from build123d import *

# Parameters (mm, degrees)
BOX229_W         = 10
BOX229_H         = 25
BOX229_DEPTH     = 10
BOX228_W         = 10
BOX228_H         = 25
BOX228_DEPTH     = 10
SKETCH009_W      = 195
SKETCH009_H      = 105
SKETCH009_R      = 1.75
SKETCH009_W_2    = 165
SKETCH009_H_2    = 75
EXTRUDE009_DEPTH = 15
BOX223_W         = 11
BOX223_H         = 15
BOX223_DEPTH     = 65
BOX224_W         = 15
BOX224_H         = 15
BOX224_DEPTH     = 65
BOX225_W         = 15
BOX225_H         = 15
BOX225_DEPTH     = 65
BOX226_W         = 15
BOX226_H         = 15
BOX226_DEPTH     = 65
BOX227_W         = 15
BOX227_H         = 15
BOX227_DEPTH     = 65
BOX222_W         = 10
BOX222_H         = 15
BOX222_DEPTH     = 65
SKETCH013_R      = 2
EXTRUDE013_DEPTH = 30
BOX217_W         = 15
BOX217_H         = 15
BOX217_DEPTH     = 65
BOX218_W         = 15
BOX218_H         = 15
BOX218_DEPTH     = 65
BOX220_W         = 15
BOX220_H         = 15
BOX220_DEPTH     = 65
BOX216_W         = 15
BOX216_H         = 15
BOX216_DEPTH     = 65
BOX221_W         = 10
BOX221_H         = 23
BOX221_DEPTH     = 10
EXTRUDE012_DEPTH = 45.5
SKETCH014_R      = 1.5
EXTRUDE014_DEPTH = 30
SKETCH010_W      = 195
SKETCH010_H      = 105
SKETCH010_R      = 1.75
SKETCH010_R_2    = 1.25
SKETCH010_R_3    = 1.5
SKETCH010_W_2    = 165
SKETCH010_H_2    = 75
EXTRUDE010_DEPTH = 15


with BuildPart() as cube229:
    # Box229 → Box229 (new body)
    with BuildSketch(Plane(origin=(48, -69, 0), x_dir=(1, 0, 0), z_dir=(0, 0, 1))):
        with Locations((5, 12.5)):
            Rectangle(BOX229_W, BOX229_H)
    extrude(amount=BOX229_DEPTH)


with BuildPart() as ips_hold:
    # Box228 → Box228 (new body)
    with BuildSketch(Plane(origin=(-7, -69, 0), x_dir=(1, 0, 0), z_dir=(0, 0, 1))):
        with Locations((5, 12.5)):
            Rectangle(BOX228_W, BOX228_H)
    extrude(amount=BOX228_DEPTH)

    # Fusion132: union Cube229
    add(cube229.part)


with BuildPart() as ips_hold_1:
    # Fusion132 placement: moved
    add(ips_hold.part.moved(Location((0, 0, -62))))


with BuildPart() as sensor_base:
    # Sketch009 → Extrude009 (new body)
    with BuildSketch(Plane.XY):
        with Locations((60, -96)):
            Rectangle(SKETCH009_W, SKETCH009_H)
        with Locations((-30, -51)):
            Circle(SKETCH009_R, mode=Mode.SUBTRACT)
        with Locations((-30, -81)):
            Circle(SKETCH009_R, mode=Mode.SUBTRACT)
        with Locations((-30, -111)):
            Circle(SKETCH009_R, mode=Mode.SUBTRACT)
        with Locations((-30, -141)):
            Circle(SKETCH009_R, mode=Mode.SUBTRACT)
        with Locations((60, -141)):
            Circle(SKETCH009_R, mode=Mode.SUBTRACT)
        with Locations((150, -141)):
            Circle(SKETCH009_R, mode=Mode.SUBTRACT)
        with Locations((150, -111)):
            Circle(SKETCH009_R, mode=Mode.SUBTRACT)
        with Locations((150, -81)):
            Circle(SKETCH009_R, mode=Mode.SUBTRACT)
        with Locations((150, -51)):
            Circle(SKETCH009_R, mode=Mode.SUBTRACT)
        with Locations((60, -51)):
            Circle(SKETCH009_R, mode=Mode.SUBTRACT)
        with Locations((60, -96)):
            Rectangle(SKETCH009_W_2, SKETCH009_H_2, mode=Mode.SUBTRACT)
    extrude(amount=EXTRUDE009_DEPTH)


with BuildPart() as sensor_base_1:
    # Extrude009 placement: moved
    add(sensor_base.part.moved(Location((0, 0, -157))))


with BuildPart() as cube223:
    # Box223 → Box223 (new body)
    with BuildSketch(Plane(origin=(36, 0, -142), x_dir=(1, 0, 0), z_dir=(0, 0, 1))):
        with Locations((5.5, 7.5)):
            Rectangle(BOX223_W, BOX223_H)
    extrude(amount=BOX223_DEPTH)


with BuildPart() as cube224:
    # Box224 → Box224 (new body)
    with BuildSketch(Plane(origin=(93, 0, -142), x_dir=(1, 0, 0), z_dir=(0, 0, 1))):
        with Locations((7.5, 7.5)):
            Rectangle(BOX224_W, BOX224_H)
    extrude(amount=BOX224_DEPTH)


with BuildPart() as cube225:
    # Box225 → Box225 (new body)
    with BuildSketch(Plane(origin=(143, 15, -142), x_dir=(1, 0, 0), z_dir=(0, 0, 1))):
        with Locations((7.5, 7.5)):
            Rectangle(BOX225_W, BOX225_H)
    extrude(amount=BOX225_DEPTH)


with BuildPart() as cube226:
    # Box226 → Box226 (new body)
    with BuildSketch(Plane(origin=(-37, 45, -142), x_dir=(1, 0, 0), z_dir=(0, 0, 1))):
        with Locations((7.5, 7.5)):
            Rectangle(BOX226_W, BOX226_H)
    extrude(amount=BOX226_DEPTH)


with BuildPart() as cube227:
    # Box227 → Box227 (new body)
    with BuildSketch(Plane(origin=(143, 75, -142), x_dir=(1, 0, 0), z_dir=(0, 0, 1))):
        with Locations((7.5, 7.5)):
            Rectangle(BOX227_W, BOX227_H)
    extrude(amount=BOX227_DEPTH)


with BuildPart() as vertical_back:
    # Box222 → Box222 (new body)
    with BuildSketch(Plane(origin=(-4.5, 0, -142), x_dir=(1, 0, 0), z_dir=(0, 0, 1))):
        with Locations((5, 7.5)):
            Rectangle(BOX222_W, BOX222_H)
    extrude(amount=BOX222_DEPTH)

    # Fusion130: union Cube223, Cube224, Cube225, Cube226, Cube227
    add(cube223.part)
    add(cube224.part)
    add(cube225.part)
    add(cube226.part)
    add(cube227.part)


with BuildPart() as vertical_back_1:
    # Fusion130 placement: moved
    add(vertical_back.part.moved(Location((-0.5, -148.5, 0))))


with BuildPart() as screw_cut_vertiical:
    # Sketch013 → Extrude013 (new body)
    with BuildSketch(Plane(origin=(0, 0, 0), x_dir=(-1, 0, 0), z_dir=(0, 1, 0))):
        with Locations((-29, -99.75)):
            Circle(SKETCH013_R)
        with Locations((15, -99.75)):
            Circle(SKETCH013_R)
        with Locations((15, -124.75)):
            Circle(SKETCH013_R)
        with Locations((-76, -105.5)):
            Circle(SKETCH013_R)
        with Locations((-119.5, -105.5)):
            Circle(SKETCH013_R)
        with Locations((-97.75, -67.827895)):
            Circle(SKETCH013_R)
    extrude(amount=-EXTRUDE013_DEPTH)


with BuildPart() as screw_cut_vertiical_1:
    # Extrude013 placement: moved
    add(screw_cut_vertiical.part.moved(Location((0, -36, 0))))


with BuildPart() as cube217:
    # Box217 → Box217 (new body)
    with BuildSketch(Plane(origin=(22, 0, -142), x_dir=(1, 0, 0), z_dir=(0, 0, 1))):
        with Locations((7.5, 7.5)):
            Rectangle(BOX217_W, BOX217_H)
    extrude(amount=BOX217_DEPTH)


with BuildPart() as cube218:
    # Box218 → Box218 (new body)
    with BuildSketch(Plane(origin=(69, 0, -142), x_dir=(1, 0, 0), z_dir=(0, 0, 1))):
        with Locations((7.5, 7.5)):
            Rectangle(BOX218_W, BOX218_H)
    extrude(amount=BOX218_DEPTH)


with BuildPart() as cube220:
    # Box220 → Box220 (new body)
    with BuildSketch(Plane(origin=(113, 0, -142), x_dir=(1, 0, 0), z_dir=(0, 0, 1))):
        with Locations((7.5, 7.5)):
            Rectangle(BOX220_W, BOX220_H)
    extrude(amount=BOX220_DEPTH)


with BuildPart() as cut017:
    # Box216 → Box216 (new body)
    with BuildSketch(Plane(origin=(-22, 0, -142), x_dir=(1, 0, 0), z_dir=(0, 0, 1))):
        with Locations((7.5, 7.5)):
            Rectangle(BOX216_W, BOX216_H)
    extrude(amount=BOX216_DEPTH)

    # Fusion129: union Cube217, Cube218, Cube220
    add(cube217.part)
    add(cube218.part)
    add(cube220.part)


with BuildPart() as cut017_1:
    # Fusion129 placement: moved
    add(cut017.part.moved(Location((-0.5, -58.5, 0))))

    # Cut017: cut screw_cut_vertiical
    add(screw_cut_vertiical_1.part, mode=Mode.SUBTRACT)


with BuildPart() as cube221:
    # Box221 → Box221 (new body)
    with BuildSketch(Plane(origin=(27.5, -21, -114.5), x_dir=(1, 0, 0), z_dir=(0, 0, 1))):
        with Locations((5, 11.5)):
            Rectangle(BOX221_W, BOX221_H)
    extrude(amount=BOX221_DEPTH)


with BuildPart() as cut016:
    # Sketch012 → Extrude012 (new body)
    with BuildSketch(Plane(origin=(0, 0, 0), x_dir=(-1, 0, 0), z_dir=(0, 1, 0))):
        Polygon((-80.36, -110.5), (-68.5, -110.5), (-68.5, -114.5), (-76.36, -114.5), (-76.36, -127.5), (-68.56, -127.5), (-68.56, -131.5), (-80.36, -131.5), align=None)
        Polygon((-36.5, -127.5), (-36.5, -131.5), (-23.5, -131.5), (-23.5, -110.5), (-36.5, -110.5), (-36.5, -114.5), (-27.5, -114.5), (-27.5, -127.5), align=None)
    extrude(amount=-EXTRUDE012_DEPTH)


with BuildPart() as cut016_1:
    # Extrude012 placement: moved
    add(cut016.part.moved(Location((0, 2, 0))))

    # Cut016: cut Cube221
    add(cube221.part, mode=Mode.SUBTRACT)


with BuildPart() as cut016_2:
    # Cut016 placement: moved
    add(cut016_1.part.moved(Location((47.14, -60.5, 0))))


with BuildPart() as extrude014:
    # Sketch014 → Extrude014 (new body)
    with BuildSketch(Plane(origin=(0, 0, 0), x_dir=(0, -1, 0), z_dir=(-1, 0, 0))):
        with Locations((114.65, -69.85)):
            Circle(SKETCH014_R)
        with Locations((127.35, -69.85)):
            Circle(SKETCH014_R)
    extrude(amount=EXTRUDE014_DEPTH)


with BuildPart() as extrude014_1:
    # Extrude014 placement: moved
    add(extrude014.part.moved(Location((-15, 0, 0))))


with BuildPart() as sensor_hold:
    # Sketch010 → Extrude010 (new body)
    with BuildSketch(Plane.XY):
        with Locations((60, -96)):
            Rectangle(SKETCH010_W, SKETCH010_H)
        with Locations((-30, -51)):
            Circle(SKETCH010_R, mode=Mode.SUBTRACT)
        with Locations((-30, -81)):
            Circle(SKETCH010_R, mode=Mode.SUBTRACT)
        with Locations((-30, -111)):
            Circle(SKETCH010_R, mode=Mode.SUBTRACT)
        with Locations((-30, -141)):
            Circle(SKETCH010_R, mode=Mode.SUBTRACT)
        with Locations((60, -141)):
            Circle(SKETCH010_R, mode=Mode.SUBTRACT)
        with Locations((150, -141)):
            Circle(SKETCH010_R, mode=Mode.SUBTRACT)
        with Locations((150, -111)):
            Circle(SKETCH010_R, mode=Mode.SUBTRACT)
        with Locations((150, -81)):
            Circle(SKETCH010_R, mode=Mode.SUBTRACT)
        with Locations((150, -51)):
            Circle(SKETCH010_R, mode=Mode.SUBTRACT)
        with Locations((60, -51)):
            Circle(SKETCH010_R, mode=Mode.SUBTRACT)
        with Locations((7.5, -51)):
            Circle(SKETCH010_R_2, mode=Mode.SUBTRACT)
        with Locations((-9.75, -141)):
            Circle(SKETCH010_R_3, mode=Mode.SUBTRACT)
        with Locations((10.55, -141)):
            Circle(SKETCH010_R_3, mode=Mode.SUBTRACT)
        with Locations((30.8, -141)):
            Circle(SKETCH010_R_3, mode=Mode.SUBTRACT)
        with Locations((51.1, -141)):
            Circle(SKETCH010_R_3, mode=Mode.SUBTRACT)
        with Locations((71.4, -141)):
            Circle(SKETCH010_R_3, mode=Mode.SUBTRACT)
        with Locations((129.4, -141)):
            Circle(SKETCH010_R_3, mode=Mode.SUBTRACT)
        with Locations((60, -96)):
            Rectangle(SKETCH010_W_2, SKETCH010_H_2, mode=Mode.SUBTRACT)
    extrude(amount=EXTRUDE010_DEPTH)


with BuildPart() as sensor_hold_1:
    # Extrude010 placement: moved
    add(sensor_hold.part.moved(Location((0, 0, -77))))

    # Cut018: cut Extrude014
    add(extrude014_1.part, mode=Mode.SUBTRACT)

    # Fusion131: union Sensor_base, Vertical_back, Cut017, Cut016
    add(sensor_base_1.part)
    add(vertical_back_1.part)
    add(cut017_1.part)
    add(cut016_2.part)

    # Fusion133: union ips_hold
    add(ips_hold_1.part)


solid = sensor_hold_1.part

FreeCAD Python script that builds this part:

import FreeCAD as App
import Part
import Sketcher
from FreeCAD import Vector


def add_polygon(sketch, points):
    """Adds a closed chain of lines whose ends are joined by coincident constraints."""
    first, n = sketch.GeometryCount, len(points)
    for a, b in zip(points, points[1:] + points[:1]):
        sketch.addGeometry(Part.LineSegment(App.Vector(*a, 0), App.Vector(*b, 0)), False)
    for i in range(n):
        sketch.addConstraint(Sketcher.Constraint("Coincident", first + i, 2, first + (i + 1) % n, 1))

doc = App.newDocument("Part")
body = doc.addObject("PartDesign::Body", "Body")

# Sketch on XY plane
sketch1 = doc.addObject("Sketcher::SketchObject", "Sketch")
body.addObject(sketch1)
sketch1.AttachmentSupport = (doc.XY_Plane, [""])
sketch1.MapMode = "FlatFace"
add_polygon(sketch1, [(48, -44), (48, -69), (58, -69), (58, -44)])  # lines 0-3
sketch1.addConstraint([
    Sketcher.Constraint("Vertical", 0),
    Sketcher.Constraint("Horizontal", 1),
    Sketcher.Constraint("Vertical", 2),
    Sketcher.Constraint("Horizontal", 3),
    Sketcher.Constraint("DistanceX", 1, 1, 1, 2, 10.0),
    Sketcher.Constraint("DistanceY", 0, 2, 0, 1, 25.0),
    Sketcher.Constraint("DistanceX", -1, 1, 0, 2, 48.0),
    Sketcher.Constraint("DistanceY", 0, 2, -1, 1, 69.0),
])
pad1 = doc.addObject("PartDesign::Pad", "Pad")
body.addObject(pad1)
pad1.Profile = sketch1
pad1.Length = 10
body2 = doc.addObject("PartDesign::Body", "Body001")
body2.AllowCompound = True

# Sketch on XY plane
sketch2 = doc.addObject("Sketcher::SketchObject", "Sketch001")
body2.addObject(sketch2)
sketch2.AttachmentSupport = (doc.getObject("XY_Plane001"), [""])
sketch2.MapMode = "FlatFace"
add_polygon(sketch2, [(-7, -44), (-7, -69), (3, -69), (3, -44)])  # lines 0-3
sketch2.addConstraint([
    Sketcher.Constraint("Vertical", 0),
    Sketcher.Constraint("Horizontal", 1),
    Sketcher.Constraint("Vertical", 2),
    Sketcher.Constraint("Horizontal", 3),
    Sketcher.Constraint("DistanceX", 1, 1, 1, 2, 10.0),
    Sketcher.Constraint("DistanceY", 0, 2, 0, 1, 25.0),
    Sketcher.Constraint("DistanceX", 0, 2, -1, 1, 7.0),
    Sketcher.Constraint("DistanceY", 0, 2, -1, 1, 69.0),
])
pad2 = doc.addObject("PartDesign::Pad", "Pad001")
body2.addObject(pad2)
pad2.Profile = sketch2
pad2.Length = 10
doc.recompute()

boolean = doc.addObject("PartDesign::Boolean", "Boolean")
body2.addObject(boolean)
boolean.Type = "Fuse"
boolean.addObjects([body])
body3 = doc.addObject("PartDesign::Body", "Body002")
body3.AllowCompound = True
doc.recompute()

body2.Placement = App.Placement(Vector(0, 0, -62), App.Rotation(Vector(0, 0, 1), 0))
boolean2 = doc.addObject("PartDesign::Boolean", "Boolean001")
body3.addObject(boolean2)
boolean2.Type = "Fuse"
boolean2.addObjects([body2])
body4 = doc.addObject("PartDesign::Body", "Body003")

# Sketch on XY plane
sketch3 = doc.addObject("Sketcher::SketchObject", "Sketch002")
body4.addObject(sketch3)
sketch3.AttachmentSupport = (doc.getObject("XY_Plane003"), [""])
sketch3.MapMode = "FlatFace"
add_polygon(sketch3, [(-37.5, -43.5), (-37.5, -148.5), (157.5, -148.5), (157.5, -43.5)])  # lines 0-3
sketch3.addGeometry(Part.Circle(Vector(-30, -141, 0), Vector(0, 0, 1), 1.8), False)  # 4
sketch3.addGeometry(Part.Circle(Vector(-30, -111, 0), Vector(0, 0, 1), 1.8), False)  # 5
sketch3.addGeometry(Part.Circle(Vector(60, -141, 0), Vector(0, 0, 1), 1.8), False)  # 6
sketch3.addGeometry(Part.Circle(Vector(150, -141, 0), Vector(0, 0, 1), 1.8), False)  # 7
add_polygon(sketch3, [(142.5, -133.5), (-22.5, -133.5), (-22.5, -58.5), (142.5, -58.5)])  # lines 8-11
sketch3.addGeometry(Part.Circle(Vector(150, -111, 0), Vector(0, 0, 1), 1.8), False)  # 12
sketch3.addGeometry(Part.Circle(Vector(-30, -81, 0), Vector(0, 0, 1), 1.8), False)  # 13
sketch3.addGeometry(Part.Circle(Vector(-30, -51, 0), Vector(0, 0, 1), 1.8), False)  # 14
sketch3.addGeometry(Part.Circle(Vector(150, -81, 0), Vector(0, 0, 1), 1.8), False)  # 15
sketch3.addGeometry(Part.Circle(Vector(60, -51, 0), Vector(0, 0, 1), 1.8), False)  # 16
sketch3.addGeometry(Part.Circle(Vector(150, -51, 0), Vector(0, 0, 1), 1.8), False)  # 17
sketch3.addConstraint([
    Sketcher.Constraint("Vertical", 0),
    Sketcher.Constraint("Horizontal", 1),
    Sketcher.Constraint("Vertical", 2),
    Sketcher.Constraint("Horizontal", 3),
    Sketcher.Constraint("Horizontal", 8),
    Sketcher.Constraint("Vertical", 9),
    Sketcher.Constraint("Horizontal", 10),
    Sketcher.Constraint("Vertical", 11),
    Sketcher.Constraint("Equal", 4, 5),
    Sketcher.Constraint("Equal", 5, 6),
    Sketcher.Constraint("Equal", 6, 7),
    Sketcher.Constraint("Equal", 7, 12),
    Sketcher.Constraint("Equal", 12, 13),
    Sketcher.Constraint("Equal", 13, 14),
    Sketcher.Constraint("Equal", 14, 15),
    Sketcher.Constraint("Equal", 15, 16),
    Sketcher.Constraint("Equal", 16, 17),
    Sketcher.Constraint("Horizontal", 4, 3, 6, 3),
    Sketcher.Constraint("Horizontal", 6, 3, 7, 3),
    Sketcher.Constraint("Horizontal", 5, 3, 12, 3),
    Sketcher.Constraint("Horizontal", 13, 3, 15, 3),
    Sketcher.Constraint("Horizontal", 14, 3, 16, 3),
    Sketcher.Constraint("Horizontal", 16, 3, 17, 3),
    Sketcher.Constraint("Vertical", 4, 3, 5, 3),
    Sketcher.Constraint("Vertical", 7, 3, 12, 3),
    Sketcher.Constraint("Vertical", 5, 3, 13, 3),
    Sketcher.Constraint("Vertical", 13, 3, 14, 3),
    Sketcher.Constraint("Vertical", 12, 3, 15, 3),
    Sketcher.Constraint("Vertical", 6, 3, 16, 3),
    Sketcher.Constraint("Vertical", 15, 3, 17, 3),
    Sketcher.Constraint("Diameter", 4, 3.5),
    Sketcher.Constraint("DistanceX", 1, 1, 1, 2, 195.0),
    Sketcher.Constraint("DistanceX", 8, 2, 8, 1, 165.0),
    Sketcher.Constraint("DistanceY", 0, 2, 0, 1, 105.0),
    Sketcher.Constraint("DistanceY", 9, 1, 9, 2, 75.0),
    Sketcher.Constraint("DistanceX", 4, 3, -1, 1, 30.0),
    Sketcher.Constraint("DistanceY", 4, 3, -1, 1, 141.0),
    Sketcher.Constraint("DistanceY", 5, 3, -1, 1, 111.0),
    Sketcher.Constraint("DistanceX", -1, 1, 6, 3, 60.0),
    Sketcher.Constraint("DistanceX", -1, 1, 7, 3, 150.0),
    Sketcher.Constraint("DistanceY", 13, 3, -1, 1, 81.0),
    Sketcher.Constraint("DistanceY", 14, 3, -1, 1, 51.0),
    Sketcher.Constraint("DistanceX", 0, 2, 8, 2, 15.0),
    Sketcher.Constraint("DistanceY", 0, 2, 8, 2, 15.0),
    Sketcher.Constraint("DistanceX", 0, 2, -1, 1, 37.5),
    Sketcher.Constraint("DistanceY", 0, 2, -1, 1, 148.5),
])
pad3 = doc.addObject("PartDesign::Pad", "Pad002")
body4.addObject(pad3)
pad3.Profile = sketch3
pad3.Length = 15
body5 = doc.addObject("PartDesign::Body", "Body004")
doc.recompute()

body4.Placement = App.Placement(Vector(0, 0, -157), App.Rotation(Vector(0, 0, 1), 0))
boolean3 = doc.addObject("PartDesign::Boolean", "Boolean002")
body5.addObject(boolean3)
boolean3.Type = "Fuse"
boolean3.addObjects([body4])
body6 = doc.addObject("PartDesign::Body", "Body005")

# Sketch on XY plane
sketch4 = doc.addObject("Sketcher::SketchObject", "Sketch003")
body6.addObject(sketch4)
sketch4.AttachmentSupport = (doc.getObject("XY_Plane005"), [""])
sketch4.MapMode = "FlatFace"
sketch4.AttachmentOffset = App.Placement(Vector(0, 0, -142), App.Rotation())
add_polygon(sketch4, [(36, 15), (36, 0), (47, 0), (47, 15)])  # lines 0-3
sketch4.addConstraint([
    Sketcher.Constraint("Vertical", 0),
    Sketcher.Constraint("Horizontal", 1),
    Sketcher.Constraint("Vertical", 2),
    Sketcher.Constraint("Horizontal", 3),
    Sketcher.Constraint("PointOnObject", 0, 2, -1),
    Sketcher.Constraint("DistanceX", 1, 1, 1, 2, 11.0),
    Sketcher.Constraint("DistanceY", 0, 2, 0, 1, 15.0),
    Sketcher.Constraint("DistanceX", -1, 1, 0, 2, 36.0),
])
pad4 = doc.addObject("PartDesign::Pad", "Pad003")
body6.addObject(pad4)
pad4.Profile = sketch4
pad4.Length = 65
body7 = doc.addObject("PartDesign::Body", "Body006")

# Sketch on XY plane
sketch5 = doc.addObject("Sketcher::SketchObject", "Sketch004")
body7.addObject(sketch5)
sketch5.AttachmentSupport = (doc.getObject("XY_Plane006"), [""])
sketch5.MapMode = "FlatFace"
sketch5.AttachmentOffset = App.Placement(Vector(0, 0, -142), App.Rotation())
add_polygon(sketch5, [(93, 15), (93, 0), (108, 0), (108, 15)])  # lines 0-3
sketch5.addConstraint([
    Sketcher.Constraint("Vertical", 0),
    Sketcher.Constraint("Horizontal", 1),
    Sketcher.Constraint("Vertical", 2),
    Sketcher.Constraint("Horizontal", 3),
    Sketcher.Constraint("PointOnObject", 0, 2, -1),
    Sketcher.Constraint("Equal", 3, 0),
    Sketcher.Constraint("DistanceX", 1, 1, 1, 2, 15.0),
    Sketcher.Constraint("DistanceX", -1, 1, 0, 2, 93.0),
])
pad5 = doc.addObject("PartDesign::Pad", "Pad004")
body7.addObject(pad5)
pad5.Profile = sketch5
pad5.Length = 65
body8 = doc.addObject("PartDesign::Body", "Body007")

# Sketch on XY plane
sketch6 = doc.addObject("Sketcher::SketchObject", "Sketch005")
body8.addObject(sketch6)
sketch6.AttachmentSupport = (doc.getObject("XY_Plane007"), [""])
sketch6.MapMode = "FlatFace"
sketch6.AttachmentOffset = App.Placement(Vector(0, 0, -142), App.Rotation())
add_polygon(sketch6, [(143, 30), (143, 15), (158, 15), (158, 30)])  # lines 0-3
sketch6.addConstraint([
    Sketcher.Constraint("Vertical", 0),
    Sketcher.Constraint("Horizontal", 1),
    Sketcher.Constraint("Vertical", 2),
    Sketcher.Constraint("Horizontal", 3),
    Sketcher.Constraint("Equal", 3, 0),
    Sketcher.Constraint("DistanceX", 1, 1, 1, 2, 15.0),
    Sketcher.Constraint("DistanceX", -1, 1, 0, 2, 143.0),
    Sketcher.Constraint("DistanceY", -1, 1, 0, 2, 15.0),
])
pad6 = doc.addObject("PartDesign::Pad", "Pad005")
body8.addObject(pad6)
pad6.Profile = sketch6
pad6.Length = 65
body9 = doc.addObject("PartDesign::Body", "Body008")

# Sketch on XY plane
sketch7 = doc.addObject("Sketcher::SketchObject", "Sketch006")
body9.addObject(sketch7)
sketch7.AttachmentSupport = (doc.getObject("XY_Plane008"), [""])
sketch7.MapMode = "FlatFace"
sketch7.AttachmentOffset = App.Placement(Vector(0, 0, -142), App.Rotation())
add_polygon(sketch7, [(-37, 60), (-37, 45), (-22, 45), (-22, 60)])  # lines 0-3
sketch7.addConstraint([
    Sketcher.Constraint("Vertical", 0),
    Sketcher.Constraint("Horizontal", 1),
    Sketcher.Constraint("Vertical", 2),
    Sketcher.Constraint("Horizontal", 3),
    Sketcher.Constraint("Equal", 3, 0),
    Sketcher.Constraint("DistanceX", 1, 1, 1, 2, 15.0),
    Sketcher.Constraint("DistanceX", 0, 2, -1, 1, 37.0),
    Sketcher.Constraint("DistanceY", -1, 1, 0, 2, 45.0),
])
pad7 = doc.addObject("PartDesign::Pad", "Pad006")
body9.addObject(pad7)
pad7.Profile = sketch7
pad7.Length = 65
body10 = doc.addObject("PartDesign::Body", "Body009")

# Sketch on XY plane
sketch8 = doc.addObject("Sketcher::SketchObject", "Sketch007")
body10.addObject(sketch8)
sketch8.AttachmentSupport = (doc.getObject("XY_Plane009"), [""])
sketch8.MapMode = "FlatFace"
sketch8.AttachmentOffset = App.Placement(Vector(0, 0, -142), App.Rotation())
add_polygon(sketch8, [(143, 90), (143, 75), (158, 75), (158, 90)])  # lines 0-3
sketch8.addConstraint([
    Sketcher.Constraint("Vertical", 0),
    Sketcher.Constraint("Horizontal", 1),
    Sketcher.Constraint("Vertical", 2),
    Sketcher.Constraint("Horizontal", 3),
    Sketcher.Constraint("Equal", 3, 0),
    Sketcher.Constraint("DistanceX", 1, 1, 1, 2, 15.0),
    Sketcher.Constraint("DistanceX", -1, 1, 0, 2, 143.0),
    Sketcher.Constraint("DistanceY", -1, 1, 0, 2, 75.0),
])
pad8 = doc.addObject("PartDesign::Pad", "Pad007")
body10.addObject(pad8)
pad8.Profile = sketch8
pad8.Length = 65
body11 = doc.addObject("PartDesign::Body", "Body010")
body11.AllowCompound = True

# Sketch on XY plane
sketch9 = doc.addObject("Sketcher::SketchObject", "Sketch008")
body11.addObject(sketch9)
sketch9.AttachmentSupport = (doc.getObject("XY_Plane010"), [""])
sketch9.MapMode = "FlatFace"
sketch9.AttachmentOffset = App.Placement(Vector(0, 0, -142), App.Rotation())
add_polygon(sketch9, [(-4, 15), (-4, 0), (6, 0), (6, 15)])  # lines 0-3
sketch9.addConstraint([
    Sketcher.Constraint("Vertical", 0),
    Sketcher.Constraint("Horizontal", 1),
    Sketcher.Constraint("Vertical", 2),
    Sketcher.Constraint("Horizontal", 3),
    Sketcher.Constraint("PointOnObject", 0, 2, -1),
    Sketcher.Constraint("DistanceX", 1, 1, 1, 2, 10.0),
    Sketcher.Constraint("DistanceY", 0, 2, 0, 1, 15.0),
    Sketcher.Constraint("DistanceX", 0, 2, -1, 1, 4.5),
])
pad9 = doc.addObject("PartDesign::Pad", "Pad008")
body11.addObject(pad9)
pad9.Profile = sketch9
pad9.Length = 65
doc.recompute()

boolean4 = doc.addObject("PartDesign::Boolean", "Boolean003")
body11.addObject(boolean4)
boolean4.Type = "Fuse"
boolean4.addObjects([body6])
doc.recompute()

boolean5 = doc.addObject("PartDesign::Boolean", "Boolean004")
body11.addObject(boolean5)
boolean5.Type = "Fuse"
boolean5.addObjects([body7])
doc.recompute()

boolean6 = doc.addObject("PartDesign::Boolean", "Boolean005")
body11.addObject(boolean6)
boolean6.Type = "Fuse"
boolean6.addObjects([body8])
doc.recompute()

boolean7 = doc.addObject("PartDesign::Boolean", "Boolean006")
body11.addObject(boolean7)
boolean7.Type = "Fuse"
boolean7.addObjects([body9])
doc.recompute()

boolean8 = doc.addObject("PartDesign::Boolean", "Boolean007")
body11.addObject(boolean8)
boolean8.Type = "Fuse"
boolean8.addObjects([body10])
body12 = doc.addObject("PartDesign::Body", "Body011")
body12.AllowCompound = True
doc.recompute()

body11.Placement = App.Placement(Vector(-0.5, -148.5, 0), App.Rotation(Vector(0, 0, 1), 0))
boolean9 = doc.addObject("PartDesign::Boolean", "Boolean008")
body12.addObject(boolean9)
boolean9.Type = "Fuse"
boolean9.addObjects([body11])
body13 = doc.addObject("PartDesign::Body", "Body012")
body13.AllowCompound = True

# Sketch on XZ plane
sketch10 = doc.addObject("Sketcher::SketchObject", "Sketch009")
body13.addObject(sketch10)
sketch10.AttachmentSupport = (doc.getObject("XZ_Plane012"), [""])
sketch10.MapMode = "FlatFace"
sketch10.addGeometry([
    Part.Circle(Vector(29, -99.8, 0), Vector(0, 0, 1), 2),  # 0
    Part.Circle(Vector(-15, -99.8, 0), Vector(0, 0, 1), 2),  # 1
    Part.Circle(Vector(-15, -124.8, 0), Vector(0, 0, 1), 2),  # 2
    Part.Circle(Vector(76, -105.5, 0), Vector(0, 0, 1), 2),  # 3
    Part.Circle(Vector(119.5, -105.5, 0), Vector(0, 0, 1), 2),  # 4
    Part.Circle(Vector(97.8, -67.8, 0), Vector(0, 0, 1), 2),  # 5
], False)
sketch10.addConstraint([
    Sketcher.Constraint("Equal", 0, 1),
    Sketcher.Constraint("Equal", 1, 2),
    Sketcher.Constraint("Equal", 2, 3),
    Sketcher.Constraint("Equal", 3, 4),
    Sketcher.Constraint("Equal", 4, 5),
    Sketcher.Constraint("Horizontal", 0, 3, 1, 3),
    Sketcher.Constraint("Horizontal", 3, 3, 4, 3),
    Sketcher.Constraint("Vertical", 1, 3, 2, 3),
    Sketcher.Constraint("Diameter", 0, 4.0),
    Sketcher.Constraint("DistanceX", -1, 1, 0, 3, 29.0),
    Sketcher.Constraint("DistanceX", 1, 3, -1, 1, 15.0),
    Sketcher.Constraint("DistanceX", -1, 1, 3, 3, 76.0),
    Sketcher.Constraint("DistanceY", 2, 3, 1, 3, 25.0),
    Sketcher.Constraint("DistanceY", 3, 3, -1, 1, 105.5),
    Sketcher.Constraint("DistanceX", -1, 1, 4, 3, 119.5),
    Sketcher.Constraint("DistanceY", 0, 3, -1, 1, 99.75),
    Sketcher.Constraint("DistanceX", -1, 1, 5, 3, 97.75),
    Sketcher.Constraint("DistanceY", 5, 3, -1, 1, 67.827895),
])
pad10 = doc.addObject("PartDesign::Pad", "Pad009")
body13.addObject(pad10)
pad10.Profile = sketch10
pad10.Length = 30
body14 = doc.addObject("PartDesign::Body", "Body013")
body14.AllowCompound = True
doc.recompute()

body13.Placement = App.Placement(Vector(0, -36, 0), App.Rotation(Vector(0, 0, 1), 0))
boolean10 = doc.addObject("PartDesign::Boolean", "Boolean009")
body14.addObject(boolean10)
boolean10.Type = "Fuse"
boolean10.addObjects([body13])
body15 = doc.addObject("PartDesign::Body", "Body014")

# Sketch on XY plane
sketch11 = doc.addObject("Sketcher::SketchObject", "Sketch010")
body15.addObject(sketch11)
sketch11.AttachmentSupport = (doc.getObject("XY_Plane014"), [""])
sketch11.MapMode = "FlatFace"
sketch11.AttachmentOffset = App.Placement(Vector(0, 0, -142), App.Rotation())
add_polygon(sketch11, [(22, 15), (22, 0), (37, 0), (37, 15)])  # lines 0-3
sketch11.addConstraint([
    Sketcher.Constraint("Vertical", 0),
    Sketcher.Constraint("Horizontal", 1),
    Sketcher.Constraint("Vertical", 2),
    Sketcher.Constraint("Horizontal", 3),
    Sketcher.Constraint("PointOnObject", 0, 2, -1),
    Sketcher.Constraint("Equal", 3, 0),
    Sketcher.Constraint("DistanceX", 1, 1, 1, 2, 15.0),
    Sketcher.Constraint("DistanceX", -1, 1, 0, 2, 22.0),
])
pad11 = doc.addObject("PartDesign::Pad", "Pad010")
body15.addObject(pad11)
pad11.Profile = sketch11
pad11.Length = 65
body16 = doc.addObject("PartDesign::Body", "Body015")

# Sketch on XY plane
sketch12 = doc.addObject("Sketcher::SketchObject", "Sketch011")
body16.addObject(sketch12)
sketch12.AttachmentSupport = (doc.getObject("XY_Plane015"), [""])
sketch12.MapMode = "FlatFace"
sketch12.AttachmentOffset = App.Placement(Vector(0, 0, -142), App.Rotation())
add_polygon(sketch12, [(69, 15), (69, 0), (84, 0), (84, 15)])  # lines 0-3
sketch12.addConstraint([
    Sketcher.Constraint("Vertical", 0),
    Sketcher.Constraint("Horizontal", 1),
    Sketcher.Constraint("Vertical", 2),
    Sketcher.Constraint("Horizontal", 3),
    Sketcher.Constraint("PointOnObject", 0, 2, -1),
    Sketcher.Constraint("Equal", 3, 0),
    Sketcher.Constraint("DistanceX", 1, 1, 1, 2, 15.0),
    Sketcher.Constraint("DistanceX", -1, 1, 0, 2, 69.0),
])
pad12 = doc.addObject("PartDesign::Pad", "Pad011")
body16.addObject(pad12)
pad12.Profile = sketch12
pad12.Length = 65
body17 = doc.addObject("PartDesign::Body", "Body016")

# Sketch on XY plane
sketch13 = doc.addObject("Sketcher::SketchObject", "Sketch012")
body17.addObject(sketch13)
sketch13.AttachmentSupport = (doc.getObject("XY_Plane016"), [""])
sketch13.MapMode = "FlatFace"
sketch13.AttachmentOffset = App.Placement(Vector(0, 0, -142), App.Rotation())
add_polygon(sketch13, [(113, 15), (113, 0), (128, 0), (128, 15)])  # lines 0-3
sketch13.addConstraint([
    Sketcher.Constraint("Vertical", 0),
    Sketcher.Constraint("Horizontal", 1),
    Sketcher.Constraint("Vertical", 2),
    Sketcher.Constraint("Horizontal", 3),
    Sketcher.Constraint("PointOnObject", 0, 2, -1),
    Sketcher.Constraint("Equal", 3, 0),
    Sketcher.Constraint("DistanceX", 1, 1, 1, 2, 15.0),
    Sketcher.Constraint("DistanceX", -1, 1, 0, 2, 113.0),
])
pad13 = doc.addObject("PartDesign::Pad", "Pad012")
body17.addObject(pad13)
pad13.Profile = sketch13
pad13.Length = 65
body18 = doc.addObject("PartDesign::Body", "Body017")
body18.AllowCompound = True

# Sketch on XY plane
sketch14 = doc.addObject("Sketcher::SketchObject", "Sketch013")
body18.addObject(sketch14)
sketch14.AttachmentSupport = (doc.getObject("XY_Plane017"), [""])
sketch14.MapMode = "FlatFace"
sketch14.AttachmentOffset = App.Placement(Vector(0, 0, -142), App.Rotation())
add_polygon(sketch14, [(-22, 15), (-22, 0), (-7, 0), (-7, 15)])  # lines 0-3
sketch14.addConstraint([
    Sketcher.Constraint("Vertical", 0),
    Sketcher.Constraint("Horizontal", 1),
    Sketcher.Constraint("Vertical", 2),
    Sketcher.Constraint("Horizontal", 3),
    Sketcher.Constraint("PointOnObject", 0, 2, -1),
    Sketcher.Constraint("Equal", 3, 0),
    Sketcher.Constraint("DistanceX", 1, 1, 1, 2, 15.0),
    Sketcher.Constraint("DistanceX", 0, 2, -1, 1, 22.0),
])
pad14 = doc.addObject("PartDesign::Pad", "Pad013")
body18.addObject(pad14)
pad14.Profile = sketch14
pad14.Length = 65
doc.recompute()

boolean11 = doc.addObject("PartDesign::Boolean", "Boolean010")
body18.addObject(boolean11)
boolean11.Type = "Fuse"
boolean11.addObjects([body15])
doc.recompute()

boolean12 = doc.addObject("PartDesign::Boolean", "Boolean011")
body18.addObject(boolean12)
boolean12.Type = "Fuse"
boolean12.addObjects([body16])
doc.recompute()

boolean13 = doc.addObject("PartDesign::Boolean", "Boolean012")
body18.addObject(boolean13)
boolean13.Type = "Fuse"
boolean13.addObjects([body17])
body19 = doc.addObject("PartDesign::Body", "Body018")
body19.AllowCompound = True
doc.recompute()

body18.Placement = App.Placement(Vector(-0.5, -58.5, 0), App.Rotation(Vector(0, 0, 1), 0))
boolean14 = doc.addObject("PartDesign::Boolean", "Boolean013")
body19.addObject(boolean14)
boolean14.Type = "Fuse"
boolean14.addObjects([body18])
doc.recompute()

boolean15 = doc.addObject("PartDesign::Boolean", "Boolean014")
body19.addObject(boolean15)
boolean15.Type = "Cut"
boolean15.addObjects([body14])
body20 = doc.addObject("PartDesign::Body", "Body019")

# Sketch on XY plane
sketch15 = doc.addObject("Sketcher::SketchObject", "Sketch014")
body20.addObject(sketch15)
sketch15.AttachmentSupport = (doc.getObject("XY_Plane019"), [""])
sketch15.MapMode = "FlatFace"
sketch15.AttachmentOffset = App.Placement(Vector(0, 0, -114.5), App.Rotation())
add_polygon(sketch15, [(28, 2), (28, -21), (38, -21), (38, 2)])  # lines 0-3
sketch15.addConstraint([
    Sketcher.Constraint("Vertical", 0),
    Sketcher.Constraint("Horizontal", 1),
    Sketcher.Constraint("Vertical", 2),
    Sketcher.Constraint("Horizontal", 3),
    Sketcher.Constraint("DistanceX", 1, 1, 1, 2, 10.0),
    Sketcher.Constraint("DistanceY", 0, 2, 0, 1, 23.0),
    Sketcher.Constraint("DistanceY", 0, 2, -1, 1, 21.0),
    Sketcher.Constraint("DistanceX", -1, 1, 0, 2, 27.5),
])
pad15 = doc.addObject("PartDesign::Pad", "Pad014")
body20.addObject(pad15)
pad15.Profile = sketch15
pad15.Length = 10
body21 = doc.addObject("PartDesign::Body", "Body020")
body21.AllowCompound = True

# Sketch on XZ plane
sketch16 = doc.addObject("Sketcher::SketchObject", "Sketch015")
body21.addObject(sketch16)
sketch16.AttachmentSupport = (doc.getObject("XZ_Plane020"), [""])
sketch16.MapMode = "FlatFace"
add_polygon(sketch16, [(68.5, -110.5), (80.4, -110.5), (80.4, -131.5), (68.6, -131.5), (68.6, -127.5), (76.4, -127.5), (76.4, -114.5), (68.5, -114.5)])  # lines 0-7
add_polygon(sketch16, [(36.5, -127.5), (36.5, -131.5), (23.5, -131.5), (23.5, -110.5), (36.5, -110.5), (36.5, -114.5), (27.5, -114.5), (27.5, -127.5)])  # lines 8-15
sketch16.addConstraint([
    Sketcher.Constraint("Horizontal", 0),
    Sketcher.Constraint("Vertical", 1),
    Sketcher.Constraint("Horizontal", 2),
    Sketcher.Constraint("Vertical", 3),
    Sketcher.Constraint("Horizontal", 4),
    Sketcher.Constraint("Vertical", 5),
    Sketcher.Constraint("Horizontal", 6),
    Sketcher.Constraint("Vertical", 7),
    Sketcher.Constraint("Vertical", 8),
    Sketcher.Constraint("Horizontal", 9),
    Sketcher.Constraint("Vertical", 10),
    Sketcher.Constraint("Horizontal", 11),
    Sketcher.Constraint("Vertical", 12),
    Sketcher.Constraint("Horizontal", 13),
    Sketcher.Constraint("Vertical", 14),
    Sketcher.Constraint("Horizontal", 15),
    Sketcher.Constraint("Horizontal", 2, 2, 8, 2),
    Sketcher.Constraint("Horizontal", 7, 2, 10, 2),
    Sketcher.Constraint("Horizontal", 6, 2, 12, 2),
    Sketcher.Constraint("Horizontal", 4, 2, 14, 2),
    Sketcher.Constraint("Vertical", 8, 2, 11, 2),
    Sketcher.Constraint("Equal", 11, 5),
    Sketcher.Constraint("Equal", 3, 7),
    Sketcher.Constraint("DistanceX", 9, 2, 9, 1, 13.0),
    Sketcher.Constraint("DistanceX", 13, 2, 13, 1, 9.0),
    Sketcher.Constraint("DistanceY", 1, 2, 1, 1, 21.0),
    Sketcher.Constraint("DistanceX", 2, 2, 2, 1, 11.8),
    Sketcher.Constraint("DistanceX", 4, 1, 4, 2, 7.8),
    Sketcher.Constraint("DistanceX", 8, 2, 6, 2, 32.0),
    Sketcher.Constraint("DistanceX", 0, 1, 0, 2, 11.86),
    Sketcher.Constraint("DistanceY", 0, 2, -1, 1, 110.5),
    Sketcher.Constraint("DistanceX", -1, 1, 6, 2, 68.5),
])
pad16 = doc.addObject("PartDesign::Pad", "Pad015")
body21.addObject(pad16)
pad16.Profile = sketch16
pad16.Length = 45.5
body22 = doc.addObject("PartDesign::Body", "Body021")
body22.AllowCompound = True
doc.recompute()

body21.Placement = App.Placement(Vector(0, 2, 0), App.Rotation(Vector(0, 0, 1), 0))
boolean16 = doc.addObject("PartDesign::Boolean", "Boolean015")
body22.addObject(boolean16)
boolean16.Type = "Fuse"
boolean16.addObjects([body21])
doc.recompute()

boolean17 = doc.addObject("PartDesign::Boolean", "Boolean016")
body22.addObject(boolean17)
boolean17.Type = "Cut"
boolean17.addObjects([body20])
body23 = doc.addObject("PartDesign::Body", "Body022")
body23.AllowCompound = True
doc.recompute()

body22.Placement = App.Placement(Vector(47.14, -60.5, 0), App.Rotation(Vector(0, 0, 1), 0))
boolean18 = doc.addObject("PartDesign::Boolean", "Boolean017")
body23.addObject(boolean18)
boolean18.Type = "Fuse"
boolean18.addObjects([body22])
body24 = doc.addObject("PartDesign::Body", "Body023")
body24.AllowCompound = True

# Sketch on YZ plane
sketch17 = doc.addObject("Sketcher::SketchObject", "Sketch016")
body24.addObject(sketch17)
sketch17.AttachmentSupport = (doc.getObject("YZ_Plane023"), [""])
sketch17.MapMode = "FlatFace"
sketch17.addGeometry([
    Part.Circle(Vector(-114.7, -69.8, 0), Vector(0, 0, 1), 1.5),
    Part.Circle(Vector(-127.3, -69.8, 0), Vector(0, 0, 1), 1.5),
], False)
sketch17.addConstraint([
    Sketcher.Constraint("Equal", 0, 1),
    Sketcher.Constraint("Horizontal", 0, 3, 1, 3),
    Sketcher.Constraint("Diameter", 0, 3.0),
    Sketcher.Constraint("DistanceX", 1, 3, 0, 3, 12.7),
    Sketcher.Constraint("DistanceX", 0, 3, -1, 1, 114.65),
    Sketcher.Constraint("DistanceY", 0, 3, -1, 1, 69.85),
])
pad17 = doc.addObject("PartDesign::Pad", "Pad016")
body24.addObject(pad17)
pad17.Profile = sketch17
pad17.Length = 30
pad17.Reversed = True
body25 = doc.addObject("PartDesign::Body", "Body024")
body25.AllowCompound = True
doc.recompute()

body24.Placement = App.Placement(Vector(-15, 0, 0), App.Rotation(Vector(0, 0, 1), 0))
boolean19 = doc.addObject("PartDesign::Boolean", "Boolean018")
body25.addObject(boolean19)
boolean19.Type = "Fuse"
boolean19.addObjects([body24])
body26 = doc.addObject("PartDesign::Body", "Body025")

# Sketch on XY plane
sketch18 = doc.addObject("Sketcher::SketchObject", "Sketch017")
body26.addObject(sketch18)
sketch18.AttachmentSupport = (doc.getObject("XY_Plane025"), [""])
sketch18.MapMode = "FlatFace"
add_polygon(sketch18, [(-37.5, -43.5), (-37.5, -148.5), (157.5, -148.5), (157.5, -43.5)])  # lines 0-3
sketch18.addGeometry(Part.Circle(Vector(-30, -141, 0), Vector(0, 0, 1), 1.8), False)  # 4
sketch18.addGeometry(Part.Circle(Vector(-9.8, -141, 0), Vector(0, 0, 1), 1.5), False)  # 5
sketch18.addGeometry(Part.Circle(Vector(10.6, -141, 0), Vector(0, 0, 1), 1.5), False)  # 6
sketch18.addGeometry(Part.Circle(Vector(30.8, -141, 0), Vector(0, 0, 1), 1.5), False)  # 7
sketch18.addGeometry(Part.Circle(Vector(51.1, -141, 0), Vector(0, 0, 1), 1.5), False)  # 8
sketch18.addGeometry(Part.Circle(Vector(-30, -111, 0), Vector(0, 0, 1), 1.8), False)  # 9
sketch18.addGeometry(Part.Circle(Vector(60, -141, 0), Vector(0, 0, 1), 1.8), False)  # 10
sketch18.addGeometry(Part.Circle(Vector(71.4, -141, 0), Vector(0, 0, 1), 1.5), False)  # 11
sketch18.addGeometry(Part.Circle(Vector(129.4, -141, 0), Vector(0, 0, 1), 1.5), False)  # 12
sketch18.addGeometry(Part.Circle(Vector(150, -141, 0), Vector(0, 0, 1), 1.8), False)  # 13
add_polygon(sketch18, [(142.5, -133.5), (-22.5, -133.5), (-22.5, -58.5), (142.5, -58.5)])  # lines 14-17
sketch18.addGeometry(Part.Circle(Vector(150, -111, 0), Vector(0, 0, 1), 1.8), False)  # 18
sketch18.addGeometry(Part.Circle(Vector(-30, -81, 0), Vector(0, 0, 1), 1.8), False)  # 19
sketch18.addGeometry(Part.Circle(Vector(-30, -51, 0), Vector(0, 0, 1), 1.8), False)  # 20
sketch18.addGeometry(Part.Circle(Vector(7.5, -51, 0), Vector(0, 0, 1), 1.2), False)  # 21
sketch18.addGeometry(Part.Circle(Vector(150, -81, 0), Vector(0, 0, 1), 1.8), False)  # 22
sketch18.addGeometry(Part.Circle(Vector(60, -51, 0), Vector(0, 0, 1), 1.8), False)  # 23
sketch18.addGeometry(Part.Circle(Vector(150, -51, 0), Vector(0, 0, 1), 1.8), False)  # 24
sketch18.addConstraint([
    Sketcher.Constraint("Vertical", 0),
    Sketcher.Constraint("Horizontal", 1),
    Sketcher.Constraint("Vertical", 2),
    Sketcher.Constraint("Horizontal", 3),
    Sketcher.Constraint("Horizontal", 14),
    Sketcher.Constraint("Vertical", 15),
    Sketcher.Constraint("Horizontal", 16),
    Sketcher.Constraint("Vertical", 17),
    Sketcher.Constraint("Equal", 5, 6),
    Sketcher.Constraint("Equal", 6, 7),
    Sketcher.Constraint("Equal", 7, 8),
    Sketcher.Constraint("Equal", 4, 9),
    Sketcher.Constraint("Equal", 9, 10),
    Sketcher.Constraint("Equal", 8, 11),
    Sketcher.Constraint("Equal", 11, 12),
    Sketcher.Constraint("Equal", 10, 13),
    Sketcher.Constraint("Equal", 13, 18),
    Sketcher.Constraint("Equal", 18, 19),
    Sketcher.Constraint("Equal", 19, 20),
    Sketcher.Constraint("Equal", 20, 22),
    Sketcher.Constraint("Equal", 22, 23),
    Sketcher.Constraint("Equal", 23, 24),
    Sketcher.Constraint("Horizontal", 4, 3, 5, 3),
    Sketcher.Constraint("Horizontal", 5, 3, 6, 3),
    Sketcher.Constraint("Horizontal", 6, 3, 7, 3),
    Sketcher.Constraint("Horizontal", 7, 3, 8, 3),
    Sketcher.Constraint("Horizontal", 8, 3, 10, 3),
    Sketcher.Constraint("Horizontal", 10, 3, 11, 3),
    Sketcher.Constraint("Horizontal", 11, 3, 12, 3),
    Sketcher.Constraint("Horizontal", 12, 3, 13, 3),
    Sketcher.Constraint("Horizontal", 9, 3, 18, 3),
    Sketcher.Constraint("Horizontal", 20, 3, 21, 3),
    Sketcher.Constraint("Horizontal", 19, 3, 22, 3),
    Sketcher.Constraint("Horizontal", 21, 3, 23, 3),
    Sketcher.Constraint("Horizontal", 23, 3, 24, 3),
    Sketcher.Constraint("Vertical", 4, 3, 9, 3),
    Sketcher.Constraint("Vertical", 13, 3, 18, 3),
    Sketcher.Constraint("Vertical", 9, 3, 19, 3),
    Sketcher.Constraint("Vertical", 19, 3, 20, 3),
    Sketcher.Constraint("Vertical", 18, 3, 22, 3),
    Sketcher.Constraint("Vertical", 10, 3, 23, 3),
    Sketcher.Constraint("Vertical", 22, 3, 24, 3),
    Sketcher.Constraint("Diameter", 5, 3.0),
    Sketcher.Constraint("Diameter", 4, 3.5),
    Sketcher.Constraint("Diameter", 21, 2.5),
    Sketcher.Constraint("DistanceX", 1, 1, 1, 2, 195.0),
    Sketcher.Constraint("DistanceX", 14, 2, 14, 1, 165.0),
    Sketcher.Constraint("DistanceY", 0, 2, 0, 1, 105.0),
    Sketcher.Constraint("DistanceY", 15, 1, 15, 2, 75.0),
    Sketcher.Constraint("DistanceX", 4, 3, -1, 1, 30.0),
    Sketcher.Constraint("DistanceY", 4, 3, -1, 1, 141.0),
    Sketcher.Constraint("DistanceY", 9, 3, -1, 1, 111.0),
    Sketcher.Constraint("DistanceX", -1, 1, 10, 3, 60.0),
    Sketcher.Constraint("DistanceX", -1, 1, 13, 3, 150.0),
    Sketcher.Constraint("DistanceY", 19, 3, -1, 1, 81.0),
    Sketcher.Constraint("DistanceY", 20, 3, -1, 1, 51.0),
    Sketcher.Constraint("DistanceX", 11, 3, 12, 3, 58.0),
    Sketcher.Constraint("DistanceX", 3, 2, 21, 3, 45.0),
    Sketcher.Constraint("DistanceX", 0, 2, 14, 2, 15.0),
    Sketcher.Constraint("DistanceY", 0, 2, 14, 2, 15.0),
    Sketcher.Constraint("DistanceX", -1, 1, 7, 3, 30.8),
    Sketcher.Constraint("DistanceX", -1, 1, 8, 3, 51.1),
    Sketcher.Constraint("DistanceX", -1, 1, 11, 3, 71.4),
    Sketcher.Constraint("DistanceX", -1, 1, 21, 3, 7.5),
    Sketcher.Constraint("DistanceY", 0, 2, -1, 1, 148.5),
    Sketcher.Constraint("DistanceX", 5, 3, 6, 3, 20.3),
    Sketcher.Constraint("DistanceX", 5, 3, -1, 1, 9.75),
])
pad18 = doc.addObject("PartDesign::Pad", "Pad017")
body26.addObject(pad18)
pad18.Profile = sketch18
pad18.Length = 15
body27 = doc.addObject("PartDesign::Body", "Body026")
body27.AllowCompound = True
doc.recompute()

body26.Placement = App.Placement(Vector(0, 0, -77), App.Rotation(Vector(0, 0, 1), 0))
boolean20 = doc.addObject("PartDesign::Boolean", "Boolean019")
body27.addObject(boolean20)
boolean20.Type = "Fuse"
boolean20.addObjects([body26])
doc.recompute()

boolean21 = doc.addObject("PartDesign::Boolean", "Boolean020")
body27.addObject(boolean21)
boolean21.Type = "Cut"
boolean21.addObjects([body25])
doc.recompute()

boolean22 = doc.addObject("PartDesign::Boolean", "Boolean021")
body27.addObject(boolean22)
boolean22.Type = "Fuse"
boolean22.addObjects([body5])
doc.recompute()

boolean23 = doc.addObject("PartDesign::Boolean", "Boolean022")
body27.addObject(boolean23)
boolean23.Type = "Fuse"
boolean23.addObjects([body12])
doc.recompute()

boolean24 = doc.addObject("PartDesign::Boolean", "Boolean023")
body27.addObject(boolean24)
boolean24.Type = "Fuse"
boolean24.addObjects([body19])
doc.recompute()

boolean25 = doc.addObject("PartDesign::Boolean", "Boolean024")
body27.addObject(boolean25)
boolean25.Type = "Fuse"
boolean25.addObjects([body23])
doc.recompute()

boolean26 = doc.addObject("PartDesign::Boolean", "Boolean025")
body27.addObject(boolean26)
boolean26.Type = "Fuse"
boolean26.addObjects([body3])

doc.recompute()
